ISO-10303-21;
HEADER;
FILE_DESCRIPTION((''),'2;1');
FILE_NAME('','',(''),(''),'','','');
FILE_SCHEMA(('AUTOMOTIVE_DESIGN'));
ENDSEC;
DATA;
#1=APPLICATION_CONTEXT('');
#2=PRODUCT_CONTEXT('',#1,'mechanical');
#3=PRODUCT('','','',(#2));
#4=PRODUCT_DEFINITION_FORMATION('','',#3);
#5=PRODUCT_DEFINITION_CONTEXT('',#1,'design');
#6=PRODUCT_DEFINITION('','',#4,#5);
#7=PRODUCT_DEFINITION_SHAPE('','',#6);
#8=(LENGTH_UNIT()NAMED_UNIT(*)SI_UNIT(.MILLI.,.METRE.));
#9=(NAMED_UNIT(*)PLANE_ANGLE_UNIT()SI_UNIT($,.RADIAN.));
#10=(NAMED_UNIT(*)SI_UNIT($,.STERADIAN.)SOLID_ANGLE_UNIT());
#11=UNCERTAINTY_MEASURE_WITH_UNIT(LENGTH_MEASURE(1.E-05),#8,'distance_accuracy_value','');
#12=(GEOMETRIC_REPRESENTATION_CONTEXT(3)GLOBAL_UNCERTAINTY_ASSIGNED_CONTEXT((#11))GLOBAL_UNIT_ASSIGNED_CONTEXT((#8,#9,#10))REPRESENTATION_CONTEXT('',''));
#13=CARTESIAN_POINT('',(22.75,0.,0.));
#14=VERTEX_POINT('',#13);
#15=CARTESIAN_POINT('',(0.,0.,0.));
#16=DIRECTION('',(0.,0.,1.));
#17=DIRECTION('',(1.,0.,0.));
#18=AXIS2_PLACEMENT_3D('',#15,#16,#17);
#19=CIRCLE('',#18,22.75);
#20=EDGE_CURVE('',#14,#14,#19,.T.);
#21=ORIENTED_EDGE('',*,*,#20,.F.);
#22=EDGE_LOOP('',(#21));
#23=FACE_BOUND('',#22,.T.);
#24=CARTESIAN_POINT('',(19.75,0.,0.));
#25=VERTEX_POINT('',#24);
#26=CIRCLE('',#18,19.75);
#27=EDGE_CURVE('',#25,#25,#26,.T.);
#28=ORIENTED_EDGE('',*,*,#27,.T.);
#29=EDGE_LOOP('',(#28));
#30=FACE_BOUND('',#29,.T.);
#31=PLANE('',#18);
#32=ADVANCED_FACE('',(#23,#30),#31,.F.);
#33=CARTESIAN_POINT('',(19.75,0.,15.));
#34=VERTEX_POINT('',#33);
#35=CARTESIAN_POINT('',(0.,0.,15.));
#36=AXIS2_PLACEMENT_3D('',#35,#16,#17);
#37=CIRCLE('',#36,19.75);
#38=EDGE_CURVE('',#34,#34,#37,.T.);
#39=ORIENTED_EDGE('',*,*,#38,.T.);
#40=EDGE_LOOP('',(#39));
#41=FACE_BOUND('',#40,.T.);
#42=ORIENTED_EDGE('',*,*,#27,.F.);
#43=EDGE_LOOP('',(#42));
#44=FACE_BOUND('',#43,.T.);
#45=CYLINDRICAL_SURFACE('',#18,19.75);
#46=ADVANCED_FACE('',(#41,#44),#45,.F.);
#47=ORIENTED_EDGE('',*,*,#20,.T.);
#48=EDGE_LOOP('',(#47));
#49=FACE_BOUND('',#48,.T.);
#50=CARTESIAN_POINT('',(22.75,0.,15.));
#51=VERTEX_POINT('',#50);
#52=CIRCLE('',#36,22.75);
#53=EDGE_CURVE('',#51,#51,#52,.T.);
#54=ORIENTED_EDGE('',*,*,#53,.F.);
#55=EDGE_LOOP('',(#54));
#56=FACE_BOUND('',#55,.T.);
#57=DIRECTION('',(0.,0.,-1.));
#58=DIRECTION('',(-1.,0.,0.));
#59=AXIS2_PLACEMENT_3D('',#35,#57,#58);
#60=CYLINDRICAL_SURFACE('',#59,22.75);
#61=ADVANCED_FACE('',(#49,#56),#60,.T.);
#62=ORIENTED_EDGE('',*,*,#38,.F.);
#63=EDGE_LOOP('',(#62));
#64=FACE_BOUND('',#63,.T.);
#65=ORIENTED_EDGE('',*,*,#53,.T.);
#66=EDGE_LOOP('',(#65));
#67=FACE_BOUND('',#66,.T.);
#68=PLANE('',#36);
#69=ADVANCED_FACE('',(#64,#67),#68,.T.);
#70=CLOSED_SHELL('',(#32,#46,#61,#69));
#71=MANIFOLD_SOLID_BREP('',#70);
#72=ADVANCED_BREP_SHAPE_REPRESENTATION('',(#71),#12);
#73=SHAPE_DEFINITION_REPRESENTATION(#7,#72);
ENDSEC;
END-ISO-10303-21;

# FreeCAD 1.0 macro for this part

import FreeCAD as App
import Part
import Sketcher
from FreeCAD import Vector
Q = App.Units.Quantity

doc = App.newDocument("Part")
body = doc.addObject("PartDesign::Body", "Body")

# Sketch on XY plane
sketch1 = body.newObject("Sketcher::SketchObject", "Sketch")
sketch1.AttachmentSupport = (doc.getObject("XY_Plane"), [""])
sketch1.MapMode = "FlatFace"
sketch1.addGeometry(Part.Circle(Vector(0, 0, 0), Vector(0, 0, 1), 22.75), False)
sketch1.addConstraint(Sketcher.Constraint("Coincident", 0, 3, -1, 1))
sketch1.addConstraint(Sketcher.Constraint("Diameter", 0, Q("45.5 mm")))
pad1 = body.newObject("PartDesign::Pad", "Pad")
pad1.Profile = sketch1
pad1.Length = 15

# Sketch on XY plane
sketch2 = body.newObject("Sketcher::SketchObject", "Sketch001")
sketch2.AttachmentSupport = (doc.getObject("XY_Plane"), [""])
sketch2.MapMode = "FlatFace"
sketch2.AttachmentOffset = App.Placement(Vector(0, 0, 15), App.Rotation())
sketch2.addGeometry(Part.Circle(Vector(0, 0, 0), Vector(0, 0, 1), 19.75), False)
sketch2.addConstraint(Sketcher.Constraint("Coincident", 0, 3, -1, 1))
sketch2.addConstraint(Sketcher.Constraint("Diameter", 0, Q("39.5 mm")))
pocket1 = body.newObject("PartDesign::Pocket", "Pocket")
pocket1.Profile = sketch2
pocket1.Type = "ThroughAll"

doc.recompute()
